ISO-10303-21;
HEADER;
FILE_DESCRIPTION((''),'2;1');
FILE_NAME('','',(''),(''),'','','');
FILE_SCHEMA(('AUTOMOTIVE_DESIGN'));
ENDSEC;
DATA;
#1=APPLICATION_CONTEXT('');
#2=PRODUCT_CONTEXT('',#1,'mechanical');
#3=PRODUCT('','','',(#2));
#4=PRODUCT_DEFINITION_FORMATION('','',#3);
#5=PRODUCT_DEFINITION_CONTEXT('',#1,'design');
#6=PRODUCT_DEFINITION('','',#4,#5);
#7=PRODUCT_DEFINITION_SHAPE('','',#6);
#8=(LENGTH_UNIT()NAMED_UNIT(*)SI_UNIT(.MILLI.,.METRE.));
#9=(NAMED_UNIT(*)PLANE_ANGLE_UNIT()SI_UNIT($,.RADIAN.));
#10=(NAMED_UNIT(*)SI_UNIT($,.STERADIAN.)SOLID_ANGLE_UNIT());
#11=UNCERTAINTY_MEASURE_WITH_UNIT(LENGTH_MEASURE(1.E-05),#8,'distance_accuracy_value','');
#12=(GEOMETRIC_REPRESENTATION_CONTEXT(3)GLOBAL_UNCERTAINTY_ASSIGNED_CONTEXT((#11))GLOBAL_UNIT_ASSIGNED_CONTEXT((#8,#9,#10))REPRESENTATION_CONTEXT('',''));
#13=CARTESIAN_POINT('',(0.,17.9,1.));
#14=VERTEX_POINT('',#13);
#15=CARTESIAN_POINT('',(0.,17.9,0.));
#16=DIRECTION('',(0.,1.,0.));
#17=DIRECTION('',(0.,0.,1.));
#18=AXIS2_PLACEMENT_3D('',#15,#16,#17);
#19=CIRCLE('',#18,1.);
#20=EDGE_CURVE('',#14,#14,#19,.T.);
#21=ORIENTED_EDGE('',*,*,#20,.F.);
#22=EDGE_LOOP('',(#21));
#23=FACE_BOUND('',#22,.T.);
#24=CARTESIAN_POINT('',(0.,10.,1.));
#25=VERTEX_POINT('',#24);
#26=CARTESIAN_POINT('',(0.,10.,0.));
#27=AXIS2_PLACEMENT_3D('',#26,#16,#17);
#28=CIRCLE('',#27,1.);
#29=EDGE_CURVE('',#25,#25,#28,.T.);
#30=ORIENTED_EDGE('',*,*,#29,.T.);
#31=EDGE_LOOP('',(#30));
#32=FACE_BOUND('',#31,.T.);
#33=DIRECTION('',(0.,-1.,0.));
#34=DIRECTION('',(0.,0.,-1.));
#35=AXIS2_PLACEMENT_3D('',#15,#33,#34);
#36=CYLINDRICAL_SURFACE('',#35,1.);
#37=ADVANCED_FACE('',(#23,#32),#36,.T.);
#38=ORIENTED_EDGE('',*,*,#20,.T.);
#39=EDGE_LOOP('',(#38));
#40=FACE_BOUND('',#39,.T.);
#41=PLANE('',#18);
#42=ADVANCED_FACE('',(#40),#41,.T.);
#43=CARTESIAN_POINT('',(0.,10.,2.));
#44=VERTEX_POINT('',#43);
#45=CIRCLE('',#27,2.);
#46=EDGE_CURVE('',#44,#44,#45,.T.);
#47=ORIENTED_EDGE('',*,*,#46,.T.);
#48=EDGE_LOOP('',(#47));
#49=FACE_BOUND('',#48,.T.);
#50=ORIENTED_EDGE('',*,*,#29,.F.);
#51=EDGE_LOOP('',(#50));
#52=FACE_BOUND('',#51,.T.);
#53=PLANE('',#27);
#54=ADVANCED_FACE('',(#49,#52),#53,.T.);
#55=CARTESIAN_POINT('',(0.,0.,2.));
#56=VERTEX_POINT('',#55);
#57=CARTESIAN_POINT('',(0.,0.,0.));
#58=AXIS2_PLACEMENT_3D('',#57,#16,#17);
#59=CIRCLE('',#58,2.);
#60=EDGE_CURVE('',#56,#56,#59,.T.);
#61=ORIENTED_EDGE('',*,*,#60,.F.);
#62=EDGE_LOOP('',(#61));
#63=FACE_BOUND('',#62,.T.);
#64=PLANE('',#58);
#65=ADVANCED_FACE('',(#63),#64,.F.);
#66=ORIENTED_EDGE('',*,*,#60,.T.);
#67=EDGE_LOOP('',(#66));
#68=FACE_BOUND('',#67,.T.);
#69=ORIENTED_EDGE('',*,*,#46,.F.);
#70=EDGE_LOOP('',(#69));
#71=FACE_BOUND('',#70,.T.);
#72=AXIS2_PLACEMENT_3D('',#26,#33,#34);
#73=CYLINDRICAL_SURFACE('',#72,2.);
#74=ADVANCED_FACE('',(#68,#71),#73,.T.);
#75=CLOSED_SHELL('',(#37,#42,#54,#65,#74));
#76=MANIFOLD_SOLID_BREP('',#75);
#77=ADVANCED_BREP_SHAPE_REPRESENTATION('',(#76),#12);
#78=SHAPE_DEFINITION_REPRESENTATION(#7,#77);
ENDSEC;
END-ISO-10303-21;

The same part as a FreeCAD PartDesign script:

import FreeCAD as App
import Part
import Sketcher

V = App.Vector
Q = App.Units.Quantity

doc = App.newDocument("Part")
body = doc.addObject("PartDesign::Body", "Body")

sketch1 = body.newObject("Sketcher::SketchObject", "Sketch")
sketch1.AttachmentSupport = (doc.getObject("XZ_Plane"), [""])
sketch1.MapMode = "FlatFace"
sketch1.addGeometry(Part.Circle(V(0, 0, 0), V(0, 0, 1), 2), False)
sketch1.addConstraint([
    Sketcher.Constraint("Coincident", 0, 3, -1, 1),
    Sketcher.Constraint("Diameter", 0, Q("4 mm")),
])
pad1 = body.newObject("PartDesign::Pad", "Pad")
pad1.Profile = sketch1
pad1.Length = 10
pad1.Reversed = True

sketch2 = body.newObject("Sketcher::SketchObject", "Sketch001")
sketch2.AttachmentSupport = (doc.getObject("XZ_Plane"), [""])
sketch2.MapMode = "FlatFace"
sketch2.AttachmentOffset = App.Placement(V(0, 0, -10), App.Rotation())
sketch2.addGeometry(Part.Circle(V(0, 0, 0), V(0, 0, 1), 1), False)
sketch2.addConstraint([
    Sketcher.Constraint("Coincident", 0, 3, -1, 1),
    Sketcher.Constraint("Diameter", 0, Q("2 mm")),
])
pad2 = body.newObject("PartDesign::Pad", "Pad001")
pad2.Profile = sketch2
pad2.Length = 7.9
pad2.Reversed = True

doc.recompute()
